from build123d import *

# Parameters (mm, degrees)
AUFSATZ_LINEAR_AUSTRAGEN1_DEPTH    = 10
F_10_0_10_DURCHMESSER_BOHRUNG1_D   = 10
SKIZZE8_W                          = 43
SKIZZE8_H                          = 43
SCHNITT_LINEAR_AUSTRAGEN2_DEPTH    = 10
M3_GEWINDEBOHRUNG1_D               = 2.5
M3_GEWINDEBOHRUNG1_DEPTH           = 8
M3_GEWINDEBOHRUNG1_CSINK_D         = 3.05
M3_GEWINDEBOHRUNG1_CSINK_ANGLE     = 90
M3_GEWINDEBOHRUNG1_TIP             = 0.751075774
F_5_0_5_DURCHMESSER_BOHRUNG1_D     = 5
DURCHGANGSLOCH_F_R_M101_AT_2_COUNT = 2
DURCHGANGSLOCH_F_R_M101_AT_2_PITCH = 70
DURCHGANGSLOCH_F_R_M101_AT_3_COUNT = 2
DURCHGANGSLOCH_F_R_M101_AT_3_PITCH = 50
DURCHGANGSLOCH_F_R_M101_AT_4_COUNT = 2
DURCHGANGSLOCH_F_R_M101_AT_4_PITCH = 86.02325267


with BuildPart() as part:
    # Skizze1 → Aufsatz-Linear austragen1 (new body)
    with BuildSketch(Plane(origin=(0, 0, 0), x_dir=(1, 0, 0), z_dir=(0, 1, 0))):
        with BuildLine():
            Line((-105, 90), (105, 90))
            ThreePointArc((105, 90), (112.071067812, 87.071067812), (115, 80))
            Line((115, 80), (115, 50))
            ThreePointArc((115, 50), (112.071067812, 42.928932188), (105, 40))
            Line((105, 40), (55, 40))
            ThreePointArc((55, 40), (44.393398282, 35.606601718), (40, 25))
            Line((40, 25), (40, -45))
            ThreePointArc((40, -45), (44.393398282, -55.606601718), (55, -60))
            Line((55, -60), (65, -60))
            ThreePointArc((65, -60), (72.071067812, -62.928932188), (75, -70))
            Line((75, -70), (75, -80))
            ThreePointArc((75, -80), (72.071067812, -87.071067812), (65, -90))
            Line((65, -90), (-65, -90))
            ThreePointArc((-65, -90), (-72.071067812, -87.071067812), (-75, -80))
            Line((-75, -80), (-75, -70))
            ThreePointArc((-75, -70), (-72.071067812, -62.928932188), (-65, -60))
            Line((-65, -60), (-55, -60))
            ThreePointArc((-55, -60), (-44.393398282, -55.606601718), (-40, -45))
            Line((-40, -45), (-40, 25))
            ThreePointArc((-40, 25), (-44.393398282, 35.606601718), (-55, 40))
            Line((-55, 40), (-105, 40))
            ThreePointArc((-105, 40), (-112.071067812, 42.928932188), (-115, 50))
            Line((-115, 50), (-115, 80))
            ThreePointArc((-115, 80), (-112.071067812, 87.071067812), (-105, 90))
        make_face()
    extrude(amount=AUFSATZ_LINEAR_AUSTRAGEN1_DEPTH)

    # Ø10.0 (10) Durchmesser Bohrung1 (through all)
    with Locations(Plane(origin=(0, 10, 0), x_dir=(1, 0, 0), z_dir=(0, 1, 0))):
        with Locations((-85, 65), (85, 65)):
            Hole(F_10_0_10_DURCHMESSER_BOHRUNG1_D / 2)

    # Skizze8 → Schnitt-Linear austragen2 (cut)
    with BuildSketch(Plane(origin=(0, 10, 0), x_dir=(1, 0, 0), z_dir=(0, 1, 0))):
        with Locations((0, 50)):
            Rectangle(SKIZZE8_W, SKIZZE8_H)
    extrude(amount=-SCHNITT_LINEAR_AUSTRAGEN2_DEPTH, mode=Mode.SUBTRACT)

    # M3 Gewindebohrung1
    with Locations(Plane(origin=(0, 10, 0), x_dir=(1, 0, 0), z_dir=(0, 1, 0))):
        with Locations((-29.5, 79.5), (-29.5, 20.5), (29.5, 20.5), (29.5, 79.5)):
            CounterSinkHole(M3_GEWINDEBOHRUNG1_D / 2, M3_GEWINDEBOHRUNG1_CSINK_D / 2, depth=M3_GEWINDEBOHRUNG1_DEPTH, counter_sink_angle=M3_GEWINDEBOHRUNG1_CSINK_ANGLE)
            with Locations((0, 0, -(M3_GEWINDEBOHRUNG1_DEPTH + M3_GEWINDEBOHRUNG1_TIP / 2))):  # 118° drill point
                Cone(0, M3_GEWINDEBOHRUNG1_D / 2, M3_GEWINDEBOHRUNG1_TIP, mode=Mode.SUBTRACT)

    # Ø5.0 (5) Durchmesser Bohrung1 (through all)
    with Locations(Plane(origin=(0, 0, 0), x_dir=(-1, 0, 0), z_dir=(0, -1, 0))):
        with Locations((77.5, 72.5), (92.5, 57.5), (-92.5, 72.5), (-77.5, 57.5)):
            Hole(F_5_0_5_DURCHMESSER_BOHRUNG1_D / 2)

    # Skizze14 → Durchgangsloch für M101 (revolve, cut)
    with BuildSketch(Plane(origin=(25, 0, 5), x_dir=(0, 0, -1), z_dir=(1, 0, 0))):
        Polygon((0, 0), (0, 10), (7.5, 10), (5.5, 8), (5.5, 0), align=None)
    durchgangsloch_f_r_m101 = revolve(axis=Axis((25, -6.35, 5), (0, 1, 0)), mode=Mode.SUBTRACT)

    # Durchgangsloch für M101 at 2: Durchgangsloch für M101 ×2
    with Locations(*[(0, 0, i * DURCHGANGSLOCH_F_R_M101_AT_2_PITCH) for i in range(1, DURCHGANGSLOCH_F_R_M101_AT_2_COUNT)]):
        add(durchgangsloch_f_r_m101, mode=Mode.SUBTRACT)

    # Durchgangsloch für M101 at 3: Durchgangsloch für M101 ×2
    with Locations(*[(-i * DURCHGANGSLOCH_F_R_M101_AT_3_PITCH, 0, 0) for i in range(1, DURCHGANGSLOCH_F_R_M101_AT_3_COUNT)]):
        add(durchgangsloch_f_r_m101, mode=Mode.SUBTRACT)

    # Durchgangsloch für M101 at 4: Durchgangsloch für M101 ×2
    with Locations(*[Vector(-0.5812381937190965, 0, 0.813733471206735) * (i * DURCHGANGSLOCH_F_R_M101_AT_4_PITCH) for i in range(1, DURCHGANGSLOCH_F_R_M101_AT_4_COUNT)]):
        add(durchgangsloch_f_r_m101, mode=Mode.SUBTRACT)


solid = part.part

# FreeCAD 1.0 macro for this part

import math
import FreeCAD as App
import Part
import Sketcher
Q = App.Units.Quantity


def add_polygon(sketch, points):
    """Adds a closed chain of lines whose ends are joined by coincident constraints."""
    first, n = sketch.GeometryCount, len(points)
    for a, b in zip(points, points[1:] + points[:1]):
        sketch.addGeometry(Part.LineSegment(App.Vector(*a, 0), App.Vector(*b, 0)), False)
    for i in range(n):
        sketch.addConstraint(Sketcher.Constraint("Coincident", first + i, 2, first + (i + 1) % n, 1))

doc = App.newDocument("Part")
body = doc.addObject("PartDesign::Body", "Body")

# Sketch on XZ plane
sketch1 = body.newObject("Sketcher::SketchObject", "Sketch")
sketch1.AttachmentSupport = (doc.getObject("XZ_Plane"), [""])
sketch1.MapMode = "FlatFace"
sketch1.addGeometry([
    Part.LineSegment(App.Vector(105, -90, 0), App.Vector(-105, -90, 0)),  # 0
    Part.ArcOfCircle(Part.Circle(App.Vector(-105, -80, 0), App.Vector(0, 0, 1), 10), math.radians(180), math.radians(270)),  # 1
    Part.LineSegment(App.Vector(-115, -80, 0), App.Vector(-115, -50, 0)),  # 2
    Part.ArcOfCircle(Part.Circle(App.Vector(-105, -50, 0), App.Vector(0, 0, 1), 10), math.radians(90), math.radians(180)),  # 3
    Part.LineSegment(App.Vector(-105, -40, 0), App.Vector(-55, -40, 0)),  # 4
    Part.ArcOfCircle(Part.Circle(App.Vector(-55, -25, 0), App.Vector(0, 0, 1), 15), math.radians(-90), math.radians(0)),  # 5
    Part.LineSegment(App.Vector(-40, -25, 0), App.Vector(-40, 45, 0)),  # 6
    Part.ArcOfCircle(Part.Circle(App.Vector(-55, 45, 0), App.Vector(0, 0, 1), 15), math.radians(0), math.radians(90)),  # 7
    Part.LineSegment(App.Vector(-55, 60, 0), App.Vector(-65, 60, 0)),  # 8
    Part.ArcOfCircle(Part.Circle(App.Vector(-65, 70, 0), App.Vector(0, 0, 1), 10), math.radians(180), math.radians(270)),  # 9
    Part.LineSegment(App.Vector(-75, 70, 0), App.Vector(-75, 80, 0)),  # 10
    Part.ArcOfCircle(Part.Circle(App.Vector(-65, 80, 0), App.Vector(0, 0, 1), 10), math.radians(90), math.radians(180)),  # 11
    Part.LineSegment(App.Vector(-65, 90, 0), App.Vector(65, 90, 0)),  # 12
    Part.ArcOfCircle(Part.Circle(App.Vector(65, 80, 0), App.Vector(0, 0, 1), 10), math.radians(0), math.radians(90)),  # 13
    Part.LineSegment(App.Vector(75, 80, 0), App.Vector(75, 70, 0)),  # 14
    Part.ArcOfCircle(Part.Circle(App.Vector(65, 70, 0), App.Vector(0, 0, 1), 10), math.radians(-90), math.radians(0)),  # 15
    Part.LineSegment(App.Vector(65, 60, 0), App.Vector(55, 60, 0)),  # 16
    Part.ArcOfCircle(Part.Circle(App.Vector(55, 45, 0), App.Vector(0, 0, 1), 15), math.radians(90), math.radians(180)),  # 17
    Part.LineSegment(App.Vector(40, 45, 0), App.Vector(40, -25, 0)),  # 18
    Part.ArcOfCircle(Part.Circle(App.Vector(55, -25, 0), App.Vector(0, 0, 1), 15), math.radians(180), math.radians(270)),  # 19
    Part.LineSegment(App.Vector(55, -40, 0), App.Vector(105, -40, 0)),  # 20
    Part.ArcOfCircle(Part.Circle(App.Vector(105, -50, 0), App.Vector(0, 0, 1), 10), math.radians(0), math.radians(90)),  # 21
    Part.LineSegment(App.Vector(115, -50, 0), App.Vector(115, -80, 0)),  # 22
    Part.ArcOfCircle(Part.Circle(App.Vector(105, -80, 0), App.Vector(0, 0, 1), 10), math.radians(-90), math.radians(0)),  # 23
], False)
sketch1.addConstraint([
    Sketcher.Constraint("Tangent", 0, 2, 1, 2),
    Sketcher.Constraint("Tangent", 1, 1, 2, 1),
    Sketcher.Constraint("Tangent", 2, 2, 3, 2),
    Sketcher.Constraint("Tangent", 3, 1, 4, 1),
    Sketcher.Constraint("Tangent", 4, 2, 5, 1),
    Sketcher.Constraint("Tangent", 5, 2, 6, 1),
    Sketcher.Constraint("Tangent", 6, 2, 7, 1),
    Sketcher.Constraint("Tangent", 7, 2, 8, 1),
    Sketcher.Constraint("Tangent", 8, 2, 9, 2),
    Sketcher.Constraint("Tangent", 9, 1, 10, 1),
    Sketcher.Constraint("Tangent", 10, 2, 11, 2),
    Sketcher.Constraint("Tangent", 11, 1, 12, 1),
    Sketcher.Constraint("Tangent", 12, 2, 13, 2),
    Sketcher.Constraint("Tangent", 13, 1, 14, 1),
    Sketcher.Constraint("Tangent", 14, 2, 15, 2),
    Sketcher.Constraint("Tangent", 15, 1, 16, 1),
    Sketcher.Constraint("Tangent", 16, 2, 17, 1),
    Sketcher.Constraint("Tangent", 17, 2, 18, 1),
    Sketcher.Constraint("Tangent", 18, 2, 19, 1),
    Sketcher.Constraint("Tangent", 19, 2, 20, 1),
    Sketcher.Constraint("Tangent", 20, 2, 21, 2),
    Sketcher.Constraint("Tangent", 21, 1, 22, 1),
    Sketcher.Constraint("Tangent", 22, 2, 23, 2),
    Sketcher.Constraint("Tangent", 23, 1, 0, 1),
    Sketcher.Constraint("Horizontal", 0),
    Sketcher.Constraint("Vertical", 2),
    Sketcher.Constraint("Horizontal", 4),
    Sketcher.Constraint("Vertical", 6),
    Sketcher.Constraint("Horizontal", 8),
    Sketcher.Constraint("Vertical", 10),
    Sketcher.Constraint("Horizontal", 12),
    Sketcher.Constraint("Vertical", 14),
    Sketcher.Constraint("Horizontal", 16),
    Sketcher.Constraint("Vertical", 18),
    Sketcher.Constraint("Horizontal", 20),
    Sketcher.Constraint("Vertical", 22),
    Sketcher.Constraint("Equal", 1, 3),
    Sketcher.Constraint("Equal", 5, 7),
    Sketcher.Constraint("Equal", 3, 9),
    Sketcher.Constraint("Equal", 9, 11),
    Sketcher.Constraint("Equal", 11, 13),
    Sketcher.Constraint("Equal", 13, 15),
    Sketcher.Constraint("Equal", 7, 17),
    Sketcher.Constraint("Equal", 17, 19),
    Sketcher.Constraint("Equal", 15, 21),
    Sketcher.Constraint("Equal", 21, 23),
    Sketcher.Constraint("Symmetric", 9, 3, 15, 3, -2),
    Sketcher.Constraint("Symmetric", 5, 3, 19, 3, -2),
    Sketcher.Constraint("Equal", 4, 20),
    Sketcher.Constraint("Equal", 16, 10),
    Sketcher.Constraint("Radius", 1, 10.0),
    Sketcher.Constraint("Radius", 5, 15.0),
    Sketcher.Constraint("DistanceX", 0, 2, 0, 1, 210.0),
    Sketcher.Constraint("DistanceX", 4, 1, 4, 2, 50.0),
    Sketcher.Constraint("DistanceX", 8, 2, 8, 1, 10.0),
    Sketcher.Constraint("DistanceY", 2, 1, 2, 2, 30.0),
    Sketcher.Constraint("DistanceY", 6, 1, 6, 2, 70.0),
    Sketcher.Constraint("DistanceY", 1, 3, -1, 1, 80.0),
])
pad1 = body.newObject("PartDesign::Pad", "Pad")
pad1.Profile = sketch1
pad1.Length = 10
pad1.Reversed = True

# Sketch on XZ plane
sketch2 = body.newObject("Sketcher::SketchObject", "Sketch001")
sketch2.AttachmentSupport = (doc.getObject("XZ_Plane"), [""])
sketch2.MapMode = "FlatFace"
sketch2.AttachmentOffset = App.Placement(App.Vector(0, 0, -10), App.Rotation())
sketch2.addGeometry([
    Part.Circle(App.Vector(-85, -65, 0), App.Vector(0, 0, 1), 5),
    Part.Circle(App.Vector(85, -65, 0), App.Vector(0, 0, 1), 5),
], False)
sketch2.addConstraint([
    Sketcher.Constraint("Equal", 0, 1),
    Sketcher.Constraint("Symmetric", 0, 3, 1, 3, -2),
    Sketcher.Constraint("Diameter", 0, 10.0),
    Sketcher.Constraint("DistanceX", 0, 3, -1, 1, 85.0),
    Sketcher.Constraint("DistanceY", 0, 3, -1, 1, 65.0),
])
doc.recompute()
hole = body.newObject("PartDesign::Hole", "Hole")
hole.Profile = sketch2
hole.ThreadType = "None"
hole.Diameter = 10
hole.DepthType = "ThroughAll"
hole.Reversed = True

# Sketch on XZ plane
sketch3 = body.newObject("Sketcher::SketchObject", "Sketch002")
sketch3.AttachmentSupport = (doc.getObject("XZ_Plane"), [""])
sketch3.MapMode = "FlatFace"
sketch3.AttachmentOffset = App.Placement(App.Vector(0, 0, -10), App.Rotation())
add_polygon(sketch3, [(-21.5, -71.5), (-21.5, -28.5), (21.5, -28.5), (21.5, -71.5)])  # lines 0-3
sketch3.addConstraint([
    Sketcher.Constraint("Vertical", 0),
    Sketcher.Constraint("Horizontal", 1),
    Sketcher.Constraint("Vertical", 2),
    Sketcher.Constraint("Horizontal", 3),
    Sketcher.Constraint("Equal", 3, 0),
    Sketcher.Constraint("DistanceX", 1, 1, 1, 2, 43.0),
    Sketcher.Constraint("DistanceX", 0, 2, -1, 1, 21.5),
    Sketcher.Constraint("DistanceY", 0, 2, -1, 1, 28.5),
])
pocket1 = body.newObject("PartDesign::Pocket", "Pocket")
pocket1.Profile = sketch3
pocket1.Length = 10
pocket1.Reversed = True

# Sketch on XZ plane
sketch4 = body.newObject("Sketcher::SketchObject", "Sketch003")
sketch4.AttachmentSupport = (doc.getObject("XZ_Plane"), [""])
sketch4.MapMode = "FlatFace"
sketch4.AttachmentOffset = App.Placement(App.Vector(0, 0, -10), App.Rotation())
sketch4.addGeometry([
    Part.Circle(App.Vector(-29.5, -79.5, 0), App.Vector(0, 0, 1), 1.25),
    Part.Circle(App.Vector(-29.5, -20.5, 0), App.Vector(0, 0, 1), 1.25),
    Part.Circle(App.Vector(29.5, -20.5, 0), App.Vector(0, 0, 1), 1.25),
    Part.Circle(App.Vector(29.5, -79.5, 0), App.Vector(0, 0, 1), 1.25),
], False)
sketch4.addConstraint([
    Sketcher.Constraint("Equal", 0, 1),
    Sketcher.Constraint("Equal", 1, 2),
    Sketcher.Constraint("Equal", 2, 3),
    Sketcher.Constraint("Symmetric", 1, 3, 2, 3, -2),
    Sketcher.Constraint("Symmetric", 0, 3, 3, 3, -2),
    Sketcher.Constraint("Vertical", 0, 3, 1, 3),
    Sketcher.Constraint("Diameter", 0, 2.5),
    Sketcher.Constraint("DistanceY", 0, 3, 1, 3, 59.0),
    Sketcher.Constraint("DistanceX", 1, 3, 2, 3, 59.0),
    Sketcher.Constraint("DistanceY", 0, 3, -1, 1, 79.5),
])
doc.recompute()
hole2 = body.newObject("PartDesign::Hole", "Hole001")
hole2.Profile = sketch4
hole2.ThreadType = "None"
hole2.Diameter = 2.5
hole2.DepthType = "Dimension"
hole2.Depth = 8
hole2.DrillPoint = "Angled"
hole2.DrillPointAngle = 118
hole2.HoleCutType = "Countersink"
hole2.HoleCutDiameter = 3.05
hole2.HoleCutCountersinkAngle = 90
hole2.Reversed = True

# Sketch on XZ plane
sketch5 = body.newObject("Sketcher::SketchObject", "Sketch004")
sketch5.AttachmentSupport = (doc.getObject("XZ_Plane"), [""])
sketch5.MapMode = "FlatFace"
sketch5.addGeometry([
    Part.Circle(App.Vector(-77.5, -72.5, 0), App.Vector(0, 0, 1), 2.5),
    Part.Circle(App.Vector(-92.5, -57.5, 0), App.Vector(0, 0, 1), 2.5),
    Part.Circle(App.Vector(92.5, -72.5, 0), App.Vector(0, 0, 1), 2.5),
    Part.Circle(App.Vector(77.5, -57.5, 0), App.Vector(0, 0, 1), 2.5),
], False)
sketch5.addConstraint([
    Sketcher.Constraint("Equal", 0, 1),
    Sketcher.Constraint("Equal", 1, 2),
    Sketcher.Constraint("Equal", 2, 3),
    Sketcher.Constraint("Horizontal", 0, 3, 2, 3),
    Sketcher.Constraint("Horizontal", 1, 3, 3, 3),
    Sketcher.Constraint("Diameter", 0, 5.0),
    Sketcher.Constraint("DistanceX", 1, 3, 0, 3, 15.0),
    Sketcher.Constraint("DistanceY", 0, 3, 1, 3, 15.0),
    Sketcher.Constraint("DistanceX", 0, 3, 2, 3, 170.0),
    Sketcher.Constraint("DistanceX", 3, 3, 2, 3, 15.0),
    Sketcher.Constraint("DistanceX", 0, 3, -1, 1, 77.5),
    Sketcher.Constraint("DistanceY", 0, 3, -1, 1, 72.5),
])
doc.recompute()
hole3 = body.newObject("PartDesign::Hole", "Hole002")
hole3.Profile = sketch5
hole3.ThreadType = "None"
hole3.Diameter = 5
hole3.DepthType = "ThroughAll"

# Sketch on YZ plane
sketch6 = body.newObject("Sketcher::SketchObject", "Sketch005")
sketch6.AttachmentSupport = (doc.getObject("YZ_Plane"), [""])
sketch6.MapMode = "FlatFace"
sketch6.AttachmentOffset = App.Placement(App.Vector(0, 0, 25), App.Rotation())
add_polygon(sketch6, [(10, 5), (0, 5), (0, -0.5), (8, -0.5), (10, -2.5)])  # lines 0-4
sketch6.addGeometry(Part.LineSegment(App.Vector(0, 5, 0), App.Vector(10, 5, 0)), True)  # axis
sketch6.addConstraint([
    Sketcher.Constraint("Horizontal", 0),
    Sketcher.Constraint("Vertical", 1),
    Sketcher.Constraint("Horizontal", 2),
    Sketcher.Constraint("Vertical", 4),
    Sketcher.Constraint("Horizontal", 5),
    Sketcher.Constraint("Coincident", 5, 1, 0, 2),
    Sketcher.Constraint("PointOnObject", 0, 2, -2),
    Sketcher.Constraint("Vertical", 3, 2, 5, 2),
    Sketcher.Constraint("DistanceX", 0, 2, 0, 1, 10.0),
    Sketcher.Constraint("DistanceX", 2, 1, 2, 2, 8.0),
    Sketcher.Constraint("Angle", 3, Q("-45 deg")),
    Sketcher.Constraint("DistanceY", 1, 2, 1, 1, 5.5),
    Sketcher.Constraint("DistanceY", -1, 1, 0, 2, 5.0),
])
groove = body.newObject("PartDesign::Groove", "Groove")
groove.Profile = sketch6
groove.ReferenceAxis = (sketch6, ["Axis0"])
groove.Angle = 360
doc.recompute()

linearpattern = body.newObject("PartDesign::LinearPattern", "LinearPattern")
linearpattern.Originals = [groove]
linearpattern.Direction = (doc.getObject("Z_Axis"), [""])
linearpattern.Mode = "offset"
linearpattern.Offset = 70
linearpattern.Occurrences = 2
body.Tip = linearpattern
doc.recompute()

linearpattern2 = body.newObject("PartDesign::LinearPattern", "LinearPattern001")
linearpattern2.Originals = [groove]
linearpattern2.Direction = (doc.getObject("X_Axis"), [""])
linearpattern2.Mode = "offset"
linearpattern2.Offset = 50
linearpattern2.Occurrences = 2
linearpattern2.Reversed = True
body.Tip = linearpattern2
doc.recompute()

datumline = body.newObject("PartDesign::Line", "DatumLine")
datumline.Placement = App.Placement(App.Vector(0, 0, 0), App.Rotation(App.Vector(0, 0, 1), App.Vector(-0.581238194, 0, 0.813733471)))
linearpattern3 = body.newObject("PartDesign::LinearPattern", "LinearPattern002")
linearpattern3.Originals = [groove]
linearpattern3.Direction = (datumline, [""])
linearpattern3.Mode = "offset"
linearpattern3.Offset = 86.023253
linearpattern3.Occurrences = 2
body.Tip = linearpattern3

doc.recompute()
